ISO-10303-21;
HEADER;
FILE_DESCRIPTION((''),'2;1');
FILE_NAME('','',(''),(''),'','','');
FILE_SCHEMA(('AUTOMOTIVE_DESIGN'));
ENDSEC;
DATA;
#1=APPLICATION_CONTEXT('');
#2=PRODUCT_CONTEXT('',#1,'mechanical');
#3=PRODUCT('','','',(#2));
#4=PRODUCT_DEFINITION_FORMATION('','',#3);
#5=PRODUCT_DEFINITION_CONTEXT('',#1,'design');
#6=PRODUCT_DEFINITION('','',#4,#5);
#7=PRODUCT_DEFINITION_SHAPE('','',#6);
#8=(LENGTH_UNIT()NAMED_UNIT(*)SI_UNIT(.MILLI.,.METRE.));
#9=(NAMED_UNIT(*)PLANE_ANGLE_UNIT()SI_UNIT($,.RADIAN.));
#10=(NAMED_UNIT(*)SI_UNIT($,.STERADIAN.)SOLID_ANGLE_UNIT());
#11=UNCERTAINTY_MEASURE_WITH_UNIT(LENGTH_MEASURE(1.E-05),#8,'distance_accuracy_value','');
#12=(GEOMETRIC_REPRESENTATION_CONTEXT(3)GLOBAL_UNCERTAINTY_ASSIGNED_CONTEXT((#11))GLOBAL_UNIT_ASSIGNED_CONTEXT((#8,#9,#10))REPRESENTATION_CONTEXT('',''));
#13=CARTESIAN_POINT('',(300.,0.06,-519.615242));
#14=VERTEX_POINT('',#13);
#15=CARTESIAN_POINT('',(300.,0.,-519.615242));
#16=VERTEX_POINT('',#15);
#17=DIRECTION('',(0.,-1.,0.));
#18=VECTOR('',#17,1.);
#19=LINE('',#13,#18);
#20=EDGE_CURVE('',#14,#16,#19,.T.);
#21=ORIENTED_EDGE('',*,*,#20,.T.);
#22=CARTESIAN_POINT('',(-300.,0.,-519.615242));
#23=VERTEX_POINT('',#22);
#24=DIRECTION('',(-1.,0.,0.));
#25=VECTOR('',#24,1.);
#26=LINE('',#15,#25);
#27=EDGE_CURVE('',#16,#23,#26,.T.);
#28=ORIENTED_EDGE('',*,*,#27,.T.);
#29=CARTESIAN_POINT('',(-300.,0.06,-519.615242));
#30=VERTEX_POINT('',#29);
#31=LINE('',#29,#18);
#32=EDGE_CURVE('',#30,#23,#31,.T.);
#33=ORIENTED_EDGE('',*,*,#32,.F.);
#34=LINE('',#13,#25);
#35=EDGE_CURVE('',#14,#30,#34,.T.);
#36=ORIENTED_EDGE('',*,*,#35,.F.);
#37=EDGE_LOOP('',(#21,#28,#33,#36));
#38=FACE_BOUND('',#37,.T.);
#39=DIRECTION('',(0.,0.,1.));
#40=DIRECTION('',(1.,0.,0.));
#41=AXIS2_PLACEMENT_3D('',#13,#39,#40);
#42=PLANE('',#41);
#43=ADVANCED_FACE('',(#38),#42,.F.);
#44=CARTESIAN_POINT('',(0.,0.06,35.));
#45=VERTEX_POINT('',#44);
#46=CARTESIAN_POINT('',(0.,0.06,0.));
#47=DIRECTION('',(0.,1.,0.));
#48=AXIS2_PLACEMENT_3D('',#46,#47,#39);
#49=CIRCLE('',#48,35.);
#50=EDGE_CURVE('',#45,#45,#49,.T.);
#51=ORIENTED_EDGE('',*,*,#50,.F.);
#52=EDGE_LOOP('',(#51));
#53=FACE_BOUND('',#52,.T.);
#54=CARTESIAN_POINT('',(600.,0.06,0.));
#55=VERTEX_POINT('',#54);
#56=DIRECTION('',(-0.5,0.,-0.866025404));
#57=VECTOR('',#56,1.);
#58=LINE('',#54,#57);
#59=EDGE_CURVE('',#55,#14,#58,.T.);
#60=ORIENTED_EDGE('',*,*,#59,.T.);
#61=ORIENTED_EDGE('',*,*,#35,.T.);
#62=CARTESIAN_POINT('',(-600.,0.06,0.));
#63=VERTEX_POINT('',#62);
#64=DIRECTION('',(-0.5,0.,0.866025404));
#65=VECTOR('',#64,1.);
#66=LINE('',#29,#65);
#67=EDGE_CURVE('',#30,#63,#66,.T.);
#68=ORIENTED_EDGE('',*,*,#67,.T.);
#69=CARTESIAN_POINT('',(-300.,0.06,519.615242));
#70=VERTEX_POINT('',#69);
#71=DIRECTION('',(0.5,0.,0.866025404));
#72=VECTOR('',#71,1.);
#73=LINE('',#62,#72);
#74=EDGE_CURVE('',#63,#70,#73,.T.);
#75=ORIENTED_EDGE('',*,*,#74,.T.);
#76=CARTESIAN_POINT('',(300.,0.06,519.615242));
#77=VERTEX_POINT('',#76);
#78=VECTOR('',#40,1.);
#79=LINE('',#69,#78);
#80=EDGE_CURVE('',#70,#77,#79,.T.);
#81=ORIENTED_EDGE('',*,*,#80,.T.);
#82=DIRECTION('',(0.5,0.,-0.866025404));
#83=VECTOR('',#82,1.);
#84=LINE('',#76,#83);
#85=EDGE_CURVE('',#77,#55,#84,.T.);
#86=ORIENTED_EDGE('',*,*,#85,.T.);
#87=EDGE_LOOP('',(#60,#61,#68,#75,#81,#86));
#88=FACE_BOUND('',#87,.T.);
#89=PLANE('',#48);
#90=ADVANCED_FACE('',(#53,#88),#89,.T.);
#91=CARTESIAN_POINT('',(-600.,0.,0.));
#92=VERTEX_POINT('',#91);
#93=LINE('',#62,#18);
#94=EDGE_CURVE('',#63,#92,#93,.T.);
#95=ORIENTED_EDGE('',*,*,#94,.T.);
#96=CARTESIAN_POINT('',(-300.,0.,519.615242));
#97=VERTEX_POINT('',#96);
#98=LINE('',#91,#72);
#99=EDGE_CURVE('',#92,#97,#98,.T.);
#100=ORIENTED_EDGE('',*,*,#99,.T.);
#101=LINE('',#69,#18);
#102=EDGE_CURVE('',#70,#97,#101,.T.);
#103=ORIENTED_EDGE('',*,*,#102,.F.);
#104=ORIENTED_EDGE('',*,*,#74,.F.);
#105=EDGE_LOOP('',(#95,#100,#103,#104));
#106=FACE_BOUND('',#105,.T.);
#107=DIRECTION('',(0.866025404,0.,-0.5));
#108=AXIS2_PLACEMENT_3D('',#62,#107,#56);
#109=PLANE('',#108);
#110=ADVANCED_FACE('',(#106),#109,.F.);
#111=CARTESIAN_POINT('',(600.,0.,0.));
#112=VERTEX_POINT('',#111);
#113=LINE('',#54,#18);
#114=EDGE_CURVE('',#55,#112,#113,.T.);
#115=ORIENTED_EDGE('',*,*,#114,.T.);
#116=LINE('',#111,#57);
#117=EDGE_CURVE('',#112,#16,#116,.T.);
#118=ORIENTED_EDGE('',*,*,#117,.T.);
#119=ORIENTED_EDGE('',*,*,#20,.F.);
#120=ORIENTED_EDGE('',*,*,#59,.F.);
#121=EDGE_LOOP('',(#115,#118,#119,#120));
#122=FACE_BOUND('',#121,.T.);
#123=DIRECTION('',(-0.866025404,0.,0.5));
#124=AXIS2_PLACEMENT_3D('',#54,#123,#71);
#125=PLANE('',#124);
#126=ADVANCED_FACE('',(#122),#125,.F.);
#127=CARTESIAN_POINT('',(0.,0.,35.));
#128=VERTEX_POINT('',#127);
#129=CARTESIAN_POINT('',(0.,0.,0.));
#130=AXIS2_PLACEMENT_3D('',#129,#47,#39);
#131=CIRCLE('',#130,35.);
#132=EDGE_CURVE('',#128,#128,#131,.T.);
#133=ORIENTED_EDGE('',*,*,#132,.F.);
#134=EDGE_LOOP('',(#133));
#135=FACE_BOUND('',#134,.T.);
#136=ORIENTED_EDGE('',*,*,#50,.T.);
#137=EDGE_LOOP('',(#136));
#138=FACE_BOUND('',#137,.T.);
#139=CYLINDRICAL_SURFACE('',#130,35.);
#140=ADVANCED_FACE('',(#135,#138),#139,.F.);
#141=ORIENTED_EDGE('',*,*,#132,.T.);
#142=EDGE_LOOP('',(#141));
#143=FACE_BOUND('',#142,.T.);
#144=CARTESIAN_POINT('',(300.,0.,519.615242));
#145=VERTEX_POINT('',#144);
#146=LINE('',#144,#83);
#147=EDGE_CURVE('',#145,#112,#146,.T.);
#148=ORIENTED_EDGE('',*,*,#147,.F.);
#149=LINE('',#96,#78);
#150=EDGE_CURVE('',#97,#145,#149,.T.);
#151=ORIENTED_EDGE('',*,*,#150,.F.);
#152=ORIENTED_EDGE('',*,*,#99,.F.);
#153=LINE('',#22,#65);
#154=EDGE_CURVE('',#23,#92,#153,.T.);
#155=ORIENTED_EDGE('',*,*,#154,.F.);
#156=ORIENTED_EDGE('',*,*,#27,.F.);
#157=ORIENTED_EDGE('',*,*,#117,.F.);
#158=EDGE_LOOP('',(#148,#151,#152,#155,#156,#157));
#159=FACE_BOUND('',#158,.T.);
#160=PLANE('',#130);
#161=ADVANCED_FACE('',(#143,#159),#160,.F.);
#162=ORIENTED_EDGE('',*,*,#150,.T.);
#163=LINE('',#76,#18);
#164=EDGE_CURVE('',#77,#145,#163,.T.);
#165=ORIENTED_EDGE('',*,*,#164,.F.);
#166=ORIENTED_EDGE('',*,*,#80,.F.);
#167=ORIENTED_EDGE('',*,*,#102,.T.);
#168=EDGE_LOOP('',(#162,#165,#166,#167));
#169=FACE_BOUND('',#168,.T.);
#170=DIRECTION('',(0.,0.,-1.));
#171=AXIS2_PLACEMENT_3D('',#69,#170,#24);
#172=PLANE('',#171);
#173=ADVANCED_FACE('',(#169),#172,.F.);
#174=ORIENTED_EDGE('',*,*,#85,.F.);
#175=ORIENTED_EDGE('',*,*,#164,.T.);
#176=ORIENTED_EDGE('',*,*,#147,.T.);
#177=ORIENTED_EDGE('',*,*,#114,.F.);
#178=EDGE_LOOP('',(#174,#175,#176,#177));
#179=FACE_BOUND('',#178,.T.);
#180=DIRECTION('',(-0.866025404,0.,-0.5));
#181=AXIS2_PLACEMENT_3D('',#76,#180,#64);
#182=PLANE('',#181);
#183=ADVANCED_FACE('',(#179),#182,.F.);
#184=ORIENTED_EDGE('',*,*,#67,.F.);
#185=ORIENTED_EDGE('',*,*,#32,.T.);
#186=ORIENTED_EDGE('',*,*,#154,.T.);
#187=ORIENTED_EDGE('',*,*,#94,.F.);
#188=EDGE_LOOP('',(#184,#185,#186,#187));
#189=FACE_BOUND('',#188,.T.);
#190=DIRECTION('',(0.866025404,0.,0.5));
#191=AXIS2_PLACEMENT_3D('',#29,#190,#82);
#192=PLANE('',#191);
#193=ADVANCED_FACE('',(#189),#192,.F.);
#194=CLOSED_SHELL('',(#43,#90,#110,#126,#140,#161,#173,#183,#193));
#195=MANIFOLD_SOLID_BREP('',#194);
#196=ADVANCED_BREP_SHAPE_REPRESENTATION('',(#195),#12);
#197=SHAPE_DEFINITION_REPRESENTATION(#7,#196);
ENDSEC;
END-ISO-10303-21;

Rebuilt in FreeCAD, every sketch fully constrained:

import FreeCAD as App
import Part
import Sketcher
from FreeCAD import Vector
Q = App.Units.Quantity


def add_polygon(sketch, points):
    """Adds a closed chain of lines whose ends are joined by coincident constraints."""
    first, n = sketch.GeometryCount, len(points)
    for a, b in zip(points, points[1:] + points[:1]):
        sketch.addGeometry(Part.LineSegment(App.Vector(*a, 0), App.Vector(*b, 0)), False)
    for i in range(n):
        sketch.addConstraint(Sketcher.Constraint("Coincident", first + i, 2, first + (i + 1) % n, 1))

doc = App.newDocument("Part")
body = doc.addObject("PartDesign::Body", "Body")

sketch1 = doc.addObject("Sketcher::SketchObject", "Sketch")
body.addObject(sketch1)
sketch1.AttachmentSupport = (doc.XZ_Plane, [""])
sketch1.MapMode = "FlatFace"
add_polygon(sketch1, [(-600, 0), (-300, 520), (300, 520), (600, 0), (300, -520), (-300, -520)])
sketch1.addConstraint(Sketcher.Constraint("Horizontal", 1))
sketch1.addConstraint(Sketcher.Constraint("Horizontal", 4))
sketch1.addConstraint(Sketcher.Constraint("Symmetric", 0, 2, 3, 2, -1, 1))
sketch1.addConstraint(Sketcher.Constraint("Symmetric", 2, 2, 5, 2, -1, 1))
sketch1.addConstraint(Sketcher.Constraint("PointOnObject", 2, 2, -1))
sketch1.addConstraint(Sketcher.Constraint("Parallel", 2, 5))
sketch1.addConstraint(Sketcher.Constraint("Vertical", 1, 2, 3, 2))
sketch1.addConstraint(Sketcher.Constraint("DistanceX", 1, 1, 1, 2, 600.0))
sketch1.addConstraint(Sketcher.Constraint("Angle", 0, Q("60 deg")))
sketch1.addConstraint(Sketcher.Constraint("Distance", 0, 600.0))
pad1 = doc.addObject("PartDesign::Pad", "Pad")
body.addObject(pad1)
pad1.Profile = sketch1
pad1.Length = 0.06
pad1.Reversed = True

sketch2 = doc.addObject("Sketcher::SketchObject", "Sketch001")
body.addObject(sketch2)
sketch2.AttachmentSupport = (doc.XZ_Plane, [""])
sketch2.MapMode = "FlatFace"
sketch2.AttachmentOffset = App.Placement(Vector(0, 0, -0.06), App.Rotation())
sketch2.addGeometry(Part.Circle(Vector(0, 0, 0), Vector(0, 0, 1), 35), False)
sketch2.addConstraint(Sketcher.Constraint("Coincident", 0, 3, -1, 1))
sketch2.addConstraint(Sketcher.Constraint("Diameter", 0, 70.0))
pocket1 = doc.addObject("PartDesign::Pocket", "Pocket")
body.addObject(pocket1)
pocket1.Profile = sketch2
pocket1.Length = 0.06
pocket1.Reversed = True

doc.recompute()
